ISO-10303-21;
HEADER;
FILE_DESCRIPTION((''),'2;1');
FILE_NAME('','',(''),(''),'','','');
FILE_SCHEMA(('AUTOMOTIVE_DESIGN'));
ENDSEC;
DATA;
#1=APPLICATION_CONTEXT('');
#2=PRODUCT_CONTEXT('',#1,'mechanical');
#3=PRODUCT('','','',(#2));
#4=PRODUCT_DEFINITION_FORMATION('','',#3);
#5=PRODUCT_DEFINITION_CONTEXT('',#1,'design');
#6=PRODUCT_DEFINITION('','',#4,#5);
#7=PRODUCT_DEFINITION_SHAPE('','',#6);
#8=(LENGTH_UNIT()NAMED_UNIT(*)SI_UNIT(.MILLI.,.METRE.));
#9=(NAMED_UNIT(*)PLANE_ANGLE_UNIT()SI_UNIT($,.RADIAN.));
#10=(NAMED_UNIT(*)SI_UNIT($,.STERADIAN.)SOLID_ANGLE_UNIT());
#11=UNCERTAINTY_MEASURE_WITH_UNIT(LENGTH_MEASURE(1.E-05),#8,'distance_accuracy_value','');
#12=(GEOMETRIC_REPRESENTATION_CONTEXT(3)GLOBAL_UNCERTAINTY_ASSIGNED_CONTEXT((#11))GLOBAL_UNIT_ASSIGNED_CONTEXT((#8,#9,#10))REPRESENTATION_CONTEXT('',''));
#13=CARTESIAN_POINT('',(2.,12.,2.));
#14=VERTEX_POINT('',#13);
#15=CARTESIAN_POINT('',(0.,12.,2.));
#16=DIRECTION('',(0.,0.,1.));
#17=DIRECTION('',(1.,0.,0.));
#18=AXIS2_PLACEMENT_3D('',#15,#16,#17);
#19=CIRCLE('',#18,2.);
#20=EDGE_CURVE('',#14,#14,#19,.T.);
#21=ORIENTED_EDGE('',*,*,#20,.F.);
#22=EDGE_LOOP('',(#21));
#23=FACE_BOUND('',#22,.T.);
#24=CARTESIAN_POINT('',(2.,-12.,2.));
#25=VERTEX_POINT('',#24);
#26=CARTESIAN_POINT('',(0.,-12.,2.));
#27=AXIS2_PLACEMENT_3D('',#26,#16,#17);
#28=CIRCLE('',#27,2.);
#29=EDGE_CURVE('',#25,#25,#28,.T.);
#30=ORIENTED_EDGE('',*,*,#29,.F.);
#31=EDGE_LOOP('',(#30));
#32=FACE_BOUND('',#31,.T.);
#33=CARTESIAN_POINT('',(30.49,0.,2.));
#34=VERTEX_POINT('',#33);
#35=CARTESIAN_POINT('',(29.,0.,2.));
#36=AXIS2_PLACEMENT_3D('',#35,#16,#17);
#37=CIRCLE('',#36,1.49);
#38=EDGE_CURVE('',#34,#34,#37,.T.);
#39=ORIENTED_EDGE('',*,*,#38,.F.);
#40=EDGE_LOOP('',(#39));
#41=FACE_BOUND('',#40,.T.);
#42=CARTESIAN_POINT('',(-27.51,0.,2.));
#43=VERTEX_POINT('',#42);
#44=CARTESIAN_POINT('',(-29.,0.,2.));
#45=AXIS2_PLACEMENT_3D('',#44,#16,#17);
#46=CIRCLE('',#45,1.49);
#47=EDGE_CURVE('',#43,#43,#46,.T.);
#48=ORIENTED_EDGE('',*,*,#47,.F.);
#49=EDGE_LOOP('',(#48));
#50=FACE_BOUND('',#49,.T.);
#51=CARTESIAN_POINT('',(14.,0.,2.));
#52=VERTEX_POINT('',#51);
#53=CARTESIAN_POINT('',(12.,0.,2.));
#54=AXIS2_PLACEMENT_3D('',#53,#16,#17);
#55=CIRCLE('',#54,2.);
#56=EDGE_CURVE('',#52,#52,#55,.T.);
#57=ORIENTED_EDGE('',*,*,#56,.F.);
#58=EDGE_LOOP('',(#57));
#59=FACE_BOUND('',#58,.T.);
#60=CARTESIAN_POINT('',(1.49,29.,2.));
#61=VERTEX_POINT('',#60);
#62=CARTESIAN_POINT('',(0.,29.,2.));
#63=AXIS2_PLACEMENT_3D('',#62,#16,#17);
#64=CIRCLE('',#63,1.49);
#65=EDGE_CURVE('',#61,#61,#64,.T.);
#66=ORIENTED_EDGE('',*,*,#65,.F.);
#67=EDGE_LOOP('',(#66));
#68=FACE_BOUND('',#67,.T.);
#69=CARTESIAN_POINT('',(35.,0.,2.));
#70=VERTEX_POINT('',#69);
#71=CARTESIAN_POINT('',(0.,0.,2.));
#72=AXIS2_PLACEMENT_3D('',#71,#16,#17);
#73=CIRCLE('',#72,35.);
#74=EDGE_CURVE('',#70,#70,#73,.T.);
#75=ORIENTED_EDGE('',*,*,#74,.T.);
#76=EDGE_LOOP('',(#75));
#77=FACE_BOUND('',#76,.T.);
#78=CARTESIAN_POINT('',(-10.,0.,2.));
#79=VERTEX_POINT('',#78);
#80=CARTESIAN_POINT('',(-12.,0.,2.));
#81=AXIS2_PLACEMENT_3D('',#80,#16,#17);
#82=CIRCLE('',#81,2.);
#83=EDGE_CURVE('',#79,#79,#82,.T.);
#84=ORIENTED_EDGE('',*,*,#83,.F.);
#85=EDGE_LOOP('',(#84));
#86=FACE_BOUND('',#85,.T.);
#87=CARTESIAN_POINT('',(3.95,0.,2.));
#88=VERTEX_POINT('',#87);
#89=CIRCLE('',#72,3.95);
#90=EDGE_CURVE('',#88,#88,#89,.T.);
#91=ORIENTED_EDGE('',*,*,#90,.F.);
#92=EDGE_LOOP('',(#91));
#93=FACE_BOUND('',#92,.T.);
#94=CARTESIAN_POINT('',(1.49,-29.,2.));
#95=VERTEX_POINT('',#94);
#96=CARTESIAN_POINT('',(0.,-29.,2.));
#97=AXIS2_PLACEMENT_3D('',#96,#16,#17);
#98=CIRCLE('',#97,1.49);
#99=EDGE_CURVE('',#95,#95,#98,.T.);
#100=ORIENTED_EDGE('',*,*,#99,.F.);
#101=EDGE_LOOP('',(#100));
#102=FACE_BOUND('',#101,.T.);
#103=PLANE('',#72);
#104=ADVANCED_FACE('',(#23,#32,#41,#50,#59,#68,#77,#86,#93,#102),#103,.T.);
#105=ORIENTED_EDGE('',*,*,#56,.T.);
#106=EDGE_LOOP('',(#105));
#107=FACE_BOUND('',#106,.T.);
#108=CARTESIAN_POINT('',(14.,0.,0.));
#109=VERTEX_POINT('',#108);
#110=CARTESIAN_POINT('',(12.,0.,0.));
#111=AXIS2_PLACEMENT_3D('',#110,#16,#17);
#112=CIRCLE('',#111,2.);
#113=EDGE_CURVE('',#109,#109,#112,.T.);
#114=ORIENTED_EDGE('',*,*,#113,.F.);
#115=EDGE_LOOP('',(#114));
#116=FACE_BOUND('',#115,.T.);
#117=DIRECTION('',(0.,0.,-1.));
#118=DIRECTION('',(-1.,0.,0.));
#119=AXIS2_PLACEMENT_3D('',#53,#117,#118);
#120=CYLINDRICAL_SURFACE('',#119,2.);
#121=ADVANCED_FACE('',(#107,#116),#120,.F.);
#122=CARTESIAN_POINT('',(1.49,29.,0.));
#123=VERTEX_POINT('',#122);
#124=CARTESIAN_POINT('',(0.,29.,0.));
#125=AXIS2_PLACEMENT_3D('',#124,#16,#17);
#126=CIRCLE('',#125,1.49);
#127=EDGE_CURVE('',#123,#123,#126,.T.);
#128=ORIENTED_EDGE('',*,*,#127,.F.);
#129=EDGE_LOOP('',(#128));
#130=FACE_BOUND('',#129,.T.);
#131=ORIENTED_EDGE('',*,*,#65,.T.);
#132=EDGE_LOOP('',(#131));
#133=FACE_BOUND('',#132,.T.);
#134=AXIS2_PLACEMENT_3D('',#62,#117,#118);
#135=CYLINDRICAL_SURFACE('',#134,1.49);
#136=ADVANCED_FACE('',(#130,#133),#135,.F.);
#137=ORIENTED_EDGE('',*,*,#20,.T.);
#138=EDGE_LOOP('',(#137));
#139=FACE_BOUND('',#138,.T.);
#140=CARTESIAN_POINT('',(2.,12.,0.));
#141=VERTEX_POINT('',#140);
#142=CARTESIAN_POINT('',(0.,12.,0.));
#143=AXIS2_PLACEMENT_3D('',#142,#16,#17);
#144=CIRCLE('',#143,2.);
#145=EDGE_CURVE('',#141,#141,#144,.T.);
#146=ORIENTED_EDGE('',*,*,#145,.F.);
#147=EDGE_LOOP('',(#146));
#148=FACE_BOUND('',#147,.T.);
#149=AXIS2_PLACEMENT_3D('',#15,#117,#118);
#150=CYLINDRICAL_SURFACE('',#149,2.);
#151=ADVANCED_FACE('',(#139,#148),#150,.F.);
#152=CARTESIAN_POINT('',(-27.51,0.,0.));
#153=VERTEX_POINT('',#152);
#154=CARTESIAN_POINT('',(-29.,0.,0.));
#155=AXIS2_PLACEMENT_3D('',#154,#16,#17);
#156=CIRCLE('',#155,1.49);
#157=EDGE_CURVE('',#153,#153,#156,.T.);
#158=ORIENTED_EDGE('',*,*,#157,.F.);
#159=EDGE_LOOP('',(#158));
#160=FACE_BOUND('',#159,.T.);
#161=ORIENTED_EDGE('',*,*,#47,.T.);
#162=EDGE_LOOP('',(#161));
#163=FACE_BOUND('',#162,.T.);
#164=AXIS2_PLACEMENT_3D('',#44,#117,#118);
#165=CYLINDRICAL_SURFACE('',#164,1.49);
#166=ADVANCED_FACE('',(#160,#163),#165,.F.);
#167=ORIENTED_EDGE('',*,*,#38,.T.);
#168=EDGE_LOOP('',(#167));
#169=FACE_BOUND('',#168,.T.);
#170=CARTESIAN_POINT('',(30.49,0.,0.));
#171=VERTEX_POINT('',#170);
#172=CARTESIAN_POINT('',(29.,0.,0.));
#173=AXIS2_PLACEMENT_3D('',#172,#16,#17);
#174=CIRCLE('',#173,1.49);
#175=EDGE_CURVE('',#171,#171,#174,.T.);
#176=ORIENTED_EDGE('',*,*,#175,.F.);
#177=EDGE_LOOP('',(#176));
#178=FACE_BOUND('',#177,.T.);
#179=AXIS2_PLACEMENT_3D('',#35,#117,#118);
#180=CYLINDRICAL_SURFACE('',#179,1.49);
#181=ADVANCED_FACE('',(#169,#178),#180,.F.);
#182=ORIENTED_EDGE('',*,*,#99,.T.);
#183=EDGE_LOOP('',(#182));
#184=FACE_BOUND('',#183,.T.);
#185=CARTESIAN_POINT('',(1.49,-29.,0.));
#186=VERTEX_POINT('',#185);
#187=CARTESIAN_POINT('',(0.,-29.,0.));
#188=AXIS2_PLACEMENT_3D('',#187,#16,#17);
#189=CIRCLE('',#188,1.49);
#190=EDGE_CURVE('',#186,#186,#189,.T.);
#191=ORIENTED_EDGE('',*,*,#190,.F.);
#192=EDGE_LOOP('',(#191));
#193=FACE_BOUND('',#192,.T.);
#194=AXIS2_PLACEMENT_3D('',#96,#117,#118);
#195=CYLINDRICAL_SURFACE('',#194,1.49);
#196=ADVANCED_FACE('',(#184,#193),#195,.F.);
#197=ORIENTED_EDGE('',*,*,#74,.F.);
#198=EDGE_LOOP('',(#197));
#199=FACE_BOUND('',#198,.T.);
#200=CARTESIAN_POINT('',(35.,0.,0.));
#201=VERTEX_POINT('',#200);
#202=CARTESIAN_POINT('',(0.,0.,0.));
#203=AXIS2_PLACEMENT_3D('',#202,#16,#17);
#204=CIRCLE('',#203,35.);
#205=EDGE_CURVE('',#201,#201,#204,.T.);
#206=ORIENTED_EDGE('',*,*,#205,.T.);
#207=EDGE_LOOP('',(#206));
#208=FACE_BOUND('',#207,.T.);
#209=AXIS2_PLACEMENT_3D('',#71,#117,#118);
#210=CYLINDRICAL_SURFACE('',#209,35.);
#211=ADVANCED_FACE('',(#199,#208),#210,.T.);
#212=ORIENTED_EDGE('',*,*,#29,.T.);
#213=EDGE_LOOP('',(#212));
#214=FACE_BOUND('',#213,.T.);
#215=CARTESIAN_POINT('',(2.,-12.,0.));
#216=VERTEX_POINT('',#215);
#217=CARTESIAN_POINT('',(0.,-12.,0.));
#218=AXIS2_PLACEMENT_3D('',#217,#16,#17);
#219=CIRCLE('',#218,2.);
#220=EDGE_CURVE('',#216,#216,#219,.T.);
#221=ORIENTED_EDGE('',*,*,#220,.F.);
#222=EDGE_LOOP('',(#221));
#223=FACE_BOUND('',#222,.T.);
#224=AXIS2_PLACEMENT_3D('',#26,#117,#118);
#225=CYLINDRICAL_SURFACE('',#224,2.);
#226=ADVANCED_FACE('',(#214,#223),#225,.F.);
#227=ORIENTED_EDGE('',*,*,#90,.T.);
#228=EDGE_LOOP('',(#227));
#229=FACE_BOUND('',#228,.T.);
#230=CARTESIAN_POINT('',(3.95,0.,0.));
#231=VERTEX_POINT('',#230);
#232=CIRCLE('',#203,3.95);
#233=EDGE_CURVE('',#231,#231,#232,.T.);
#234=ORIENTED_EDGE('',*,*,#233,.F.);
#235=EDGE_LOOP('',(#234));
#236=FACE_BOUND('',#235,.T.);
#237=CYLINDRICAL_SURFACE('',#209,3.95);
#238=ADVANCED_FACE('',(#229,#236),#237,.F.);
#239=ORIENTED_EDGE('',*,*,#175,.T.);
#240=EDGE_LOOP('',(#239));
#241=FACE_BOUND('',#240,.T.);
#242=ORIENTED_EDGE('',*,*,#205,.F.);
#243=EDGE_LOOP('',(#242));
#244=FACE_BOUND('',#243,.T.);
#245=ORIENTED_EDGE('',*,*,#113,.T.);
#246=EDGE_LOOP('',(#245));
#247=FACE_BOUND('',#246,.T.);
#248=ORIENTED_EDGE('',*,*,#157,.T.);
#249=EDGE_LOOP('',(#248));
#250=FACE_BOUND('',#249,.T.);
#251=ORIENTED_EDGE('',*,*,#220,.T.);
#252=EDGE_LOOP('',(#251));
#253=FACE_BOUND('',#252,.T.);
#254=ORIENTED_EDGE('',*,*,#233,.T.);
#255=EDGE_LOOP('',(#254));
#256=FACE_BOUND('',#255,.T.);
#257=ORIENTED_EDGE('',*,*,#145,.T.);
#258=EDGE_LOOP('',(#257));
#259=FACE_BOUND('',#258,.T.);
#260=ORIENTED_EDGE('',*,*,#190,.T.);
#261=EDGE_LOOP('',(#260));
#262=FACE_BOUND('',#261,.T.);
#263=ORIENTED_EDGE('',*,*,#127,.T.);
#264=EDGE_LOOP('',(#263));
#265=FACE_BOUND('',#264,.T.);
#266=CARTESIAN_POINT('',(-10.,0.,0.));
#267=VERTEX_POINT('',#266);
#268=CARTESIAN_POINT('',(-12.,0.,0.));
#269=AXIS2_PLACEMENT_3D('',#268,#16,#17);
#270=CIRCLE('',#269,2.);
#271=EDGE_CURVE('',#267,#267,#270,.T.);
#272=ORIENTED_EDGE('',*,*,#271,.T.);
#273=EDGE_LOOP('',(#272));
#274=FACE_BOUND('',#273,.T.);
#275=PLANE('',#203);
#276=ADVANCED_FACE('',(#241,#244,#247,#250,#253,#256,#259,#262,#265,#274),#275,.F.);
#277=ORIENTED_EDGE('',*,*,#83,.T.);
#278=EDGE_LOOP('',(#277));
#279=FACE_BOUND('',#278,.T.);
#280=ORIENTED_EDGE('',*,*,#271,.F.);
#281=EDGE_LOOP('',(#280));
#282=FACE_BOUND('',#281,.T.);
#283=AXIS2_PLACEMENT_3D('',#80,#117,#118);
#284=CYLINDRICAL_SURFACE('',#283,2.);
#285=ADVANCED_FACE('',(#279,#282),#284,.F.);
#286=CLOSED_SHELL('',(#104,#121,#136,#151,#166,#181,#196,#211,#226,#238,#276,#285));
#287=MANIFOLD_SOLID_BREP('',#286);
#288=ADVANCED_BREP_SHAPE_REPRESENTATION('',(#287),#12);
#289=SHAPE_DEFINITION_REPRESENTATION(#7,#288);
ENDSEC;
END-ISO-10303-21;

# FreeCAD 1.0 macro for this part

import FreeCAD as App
import Part
import Sketcher

V = App.Vector
Q = App.Units.Quantity

doc = App.newDocument("Part")
body = doc.addObject("PartDesign::Body", "Body")

sketch1 = body.newObject("Sketcher::SketchObject", "Sketch")
sketch1.AttachmentSupport = (doc.getObject("XY_Plane"), [""])
sketch1.MapMode = "FlatFace"
sketch1.addGeometry(Part.Circle(V(0, 0, 0), V(0, 0, 1), 35), False)
sketch1.addGeometry(Part.Circle(V(0, -29, 0), V(0, 0, 1), 1.5), False)
sketch1.addGeometry(Part.Circle(V(0, -12, 0), V(0, 0, 1), 2), False)
sketch1.addGeometry(Part.Circle(V(-29, 0, 0), V(0, 0, 1), 1.5), False)
sketch1.addGeometry(Part.Circle(V(-12, 0, 0), V(0, 0, 1), 2), False)
sketch1.addGeometry(Part.Circle(V(0, 0, 0), V(0, 0, 1), 4), False)
sketch1.addGeometry(Part.Circle(V(12, 0, 0), V(0, 0, 1), 2), False)
sketch1.addGeometry(Part.Circle(V(0, 12, 0), V(0, 0, 1), 2), False)
sketch1.addGeometry(Part.Circle(V(29, 0, 0), V(0, 0, 1), 1.5), False)
sketch1.addGeometry(Part.Circle(V(0, 29, 0), V(0, 0, 1), 1.5), False)
sketch1.addConstraint(Sketcher.Constraint("Coincident", 0, 3, -1, 1))
sketch1.addConstraint(Sketcher.Constraint("Coincident", 5, 3, -1, 1))
sketch1.addConstraint(Sketcher.Constraint("Equal", 1, 3))
sketch1.addConstraint(Sketcher.Constraint("Equal", 2, 4))
sketch1.addConstraint(Sketcher.Constraint("Equal", 4, 6))
sketch1.addConstraint(Sketcher.Constraint("Equal", 6, 7))
sketch1.addConstraint(Sketcher.Constraint("Equal", 3, 8))
sketch1.addConstraint(Sketcher.Constraint("Equal", 8, 9))
sketch1.addConstraint(Sketcher.Constraint("Symmetric", 4, 3, 6, 3, -1, 1))
sketch1.addConstraint(Sketcher.Constraint("Symmetric", 2, 3, 7, 3, -1, 1))
sketch1.addConstraint(Sketcher.Constraint("Symmetric", 3, 3, 8, 3, -1, 1))
sketch1.addConstraint(Sketcher.Constraint("Symmetric", 1, 3, 9, 3, -1, 1))
sketch1.addConstraint(Sketcher.Constraint("PointOnObject", 1, 3, -2))
sketch1.addConstraint(Sketcher.Constraint("PointOnObject", 2, 3, -2))
sketch1.addConstraint(Sketcher.Constraint("PointOnObject", 3, 3, -1))
sketch1.addConstraint(Sketcher.Constraint("PointOnObject", 4, 3, -1))
sketch1.addConstraint(Sketcher.Constraint("Diameter", 0, Q("70 mm")))
sketch1.addConstraint(Sketcher.Constraint("Diameter", 2, Q("4 mm")))
sketch1.addConstraint(Sketcher.Constraint("Diameter", 5, Q("7.9 mm")))
sketch1.addConstraint(Sketcher.Constraint("Diameter", 1, Q("2.98 mm")))
sketch1.addConstraint(Sketcher.Constraint("DistanceY", 1, 3, -1, 1, Q("29 mm")))
sketch1.addConstraint(Sketcher.Constraint("DistanceY", 2, 3, -1, 1, Q("12 mm")))
sketch1.addConstraint(Sketcher.Constraint("DistanceX", 3, 3, -1, 1, Q("29 mm")))
sketch1.addConstraint(Sketcher.Constraint("DistanceX", 4, 3, -1, 1, Q("12 mm")))
pad1 = body.newObject("PartDesign::Pad", "Pad")
pad1.Profile = sketch1
pad1.Length = 2

doc.recompute()
